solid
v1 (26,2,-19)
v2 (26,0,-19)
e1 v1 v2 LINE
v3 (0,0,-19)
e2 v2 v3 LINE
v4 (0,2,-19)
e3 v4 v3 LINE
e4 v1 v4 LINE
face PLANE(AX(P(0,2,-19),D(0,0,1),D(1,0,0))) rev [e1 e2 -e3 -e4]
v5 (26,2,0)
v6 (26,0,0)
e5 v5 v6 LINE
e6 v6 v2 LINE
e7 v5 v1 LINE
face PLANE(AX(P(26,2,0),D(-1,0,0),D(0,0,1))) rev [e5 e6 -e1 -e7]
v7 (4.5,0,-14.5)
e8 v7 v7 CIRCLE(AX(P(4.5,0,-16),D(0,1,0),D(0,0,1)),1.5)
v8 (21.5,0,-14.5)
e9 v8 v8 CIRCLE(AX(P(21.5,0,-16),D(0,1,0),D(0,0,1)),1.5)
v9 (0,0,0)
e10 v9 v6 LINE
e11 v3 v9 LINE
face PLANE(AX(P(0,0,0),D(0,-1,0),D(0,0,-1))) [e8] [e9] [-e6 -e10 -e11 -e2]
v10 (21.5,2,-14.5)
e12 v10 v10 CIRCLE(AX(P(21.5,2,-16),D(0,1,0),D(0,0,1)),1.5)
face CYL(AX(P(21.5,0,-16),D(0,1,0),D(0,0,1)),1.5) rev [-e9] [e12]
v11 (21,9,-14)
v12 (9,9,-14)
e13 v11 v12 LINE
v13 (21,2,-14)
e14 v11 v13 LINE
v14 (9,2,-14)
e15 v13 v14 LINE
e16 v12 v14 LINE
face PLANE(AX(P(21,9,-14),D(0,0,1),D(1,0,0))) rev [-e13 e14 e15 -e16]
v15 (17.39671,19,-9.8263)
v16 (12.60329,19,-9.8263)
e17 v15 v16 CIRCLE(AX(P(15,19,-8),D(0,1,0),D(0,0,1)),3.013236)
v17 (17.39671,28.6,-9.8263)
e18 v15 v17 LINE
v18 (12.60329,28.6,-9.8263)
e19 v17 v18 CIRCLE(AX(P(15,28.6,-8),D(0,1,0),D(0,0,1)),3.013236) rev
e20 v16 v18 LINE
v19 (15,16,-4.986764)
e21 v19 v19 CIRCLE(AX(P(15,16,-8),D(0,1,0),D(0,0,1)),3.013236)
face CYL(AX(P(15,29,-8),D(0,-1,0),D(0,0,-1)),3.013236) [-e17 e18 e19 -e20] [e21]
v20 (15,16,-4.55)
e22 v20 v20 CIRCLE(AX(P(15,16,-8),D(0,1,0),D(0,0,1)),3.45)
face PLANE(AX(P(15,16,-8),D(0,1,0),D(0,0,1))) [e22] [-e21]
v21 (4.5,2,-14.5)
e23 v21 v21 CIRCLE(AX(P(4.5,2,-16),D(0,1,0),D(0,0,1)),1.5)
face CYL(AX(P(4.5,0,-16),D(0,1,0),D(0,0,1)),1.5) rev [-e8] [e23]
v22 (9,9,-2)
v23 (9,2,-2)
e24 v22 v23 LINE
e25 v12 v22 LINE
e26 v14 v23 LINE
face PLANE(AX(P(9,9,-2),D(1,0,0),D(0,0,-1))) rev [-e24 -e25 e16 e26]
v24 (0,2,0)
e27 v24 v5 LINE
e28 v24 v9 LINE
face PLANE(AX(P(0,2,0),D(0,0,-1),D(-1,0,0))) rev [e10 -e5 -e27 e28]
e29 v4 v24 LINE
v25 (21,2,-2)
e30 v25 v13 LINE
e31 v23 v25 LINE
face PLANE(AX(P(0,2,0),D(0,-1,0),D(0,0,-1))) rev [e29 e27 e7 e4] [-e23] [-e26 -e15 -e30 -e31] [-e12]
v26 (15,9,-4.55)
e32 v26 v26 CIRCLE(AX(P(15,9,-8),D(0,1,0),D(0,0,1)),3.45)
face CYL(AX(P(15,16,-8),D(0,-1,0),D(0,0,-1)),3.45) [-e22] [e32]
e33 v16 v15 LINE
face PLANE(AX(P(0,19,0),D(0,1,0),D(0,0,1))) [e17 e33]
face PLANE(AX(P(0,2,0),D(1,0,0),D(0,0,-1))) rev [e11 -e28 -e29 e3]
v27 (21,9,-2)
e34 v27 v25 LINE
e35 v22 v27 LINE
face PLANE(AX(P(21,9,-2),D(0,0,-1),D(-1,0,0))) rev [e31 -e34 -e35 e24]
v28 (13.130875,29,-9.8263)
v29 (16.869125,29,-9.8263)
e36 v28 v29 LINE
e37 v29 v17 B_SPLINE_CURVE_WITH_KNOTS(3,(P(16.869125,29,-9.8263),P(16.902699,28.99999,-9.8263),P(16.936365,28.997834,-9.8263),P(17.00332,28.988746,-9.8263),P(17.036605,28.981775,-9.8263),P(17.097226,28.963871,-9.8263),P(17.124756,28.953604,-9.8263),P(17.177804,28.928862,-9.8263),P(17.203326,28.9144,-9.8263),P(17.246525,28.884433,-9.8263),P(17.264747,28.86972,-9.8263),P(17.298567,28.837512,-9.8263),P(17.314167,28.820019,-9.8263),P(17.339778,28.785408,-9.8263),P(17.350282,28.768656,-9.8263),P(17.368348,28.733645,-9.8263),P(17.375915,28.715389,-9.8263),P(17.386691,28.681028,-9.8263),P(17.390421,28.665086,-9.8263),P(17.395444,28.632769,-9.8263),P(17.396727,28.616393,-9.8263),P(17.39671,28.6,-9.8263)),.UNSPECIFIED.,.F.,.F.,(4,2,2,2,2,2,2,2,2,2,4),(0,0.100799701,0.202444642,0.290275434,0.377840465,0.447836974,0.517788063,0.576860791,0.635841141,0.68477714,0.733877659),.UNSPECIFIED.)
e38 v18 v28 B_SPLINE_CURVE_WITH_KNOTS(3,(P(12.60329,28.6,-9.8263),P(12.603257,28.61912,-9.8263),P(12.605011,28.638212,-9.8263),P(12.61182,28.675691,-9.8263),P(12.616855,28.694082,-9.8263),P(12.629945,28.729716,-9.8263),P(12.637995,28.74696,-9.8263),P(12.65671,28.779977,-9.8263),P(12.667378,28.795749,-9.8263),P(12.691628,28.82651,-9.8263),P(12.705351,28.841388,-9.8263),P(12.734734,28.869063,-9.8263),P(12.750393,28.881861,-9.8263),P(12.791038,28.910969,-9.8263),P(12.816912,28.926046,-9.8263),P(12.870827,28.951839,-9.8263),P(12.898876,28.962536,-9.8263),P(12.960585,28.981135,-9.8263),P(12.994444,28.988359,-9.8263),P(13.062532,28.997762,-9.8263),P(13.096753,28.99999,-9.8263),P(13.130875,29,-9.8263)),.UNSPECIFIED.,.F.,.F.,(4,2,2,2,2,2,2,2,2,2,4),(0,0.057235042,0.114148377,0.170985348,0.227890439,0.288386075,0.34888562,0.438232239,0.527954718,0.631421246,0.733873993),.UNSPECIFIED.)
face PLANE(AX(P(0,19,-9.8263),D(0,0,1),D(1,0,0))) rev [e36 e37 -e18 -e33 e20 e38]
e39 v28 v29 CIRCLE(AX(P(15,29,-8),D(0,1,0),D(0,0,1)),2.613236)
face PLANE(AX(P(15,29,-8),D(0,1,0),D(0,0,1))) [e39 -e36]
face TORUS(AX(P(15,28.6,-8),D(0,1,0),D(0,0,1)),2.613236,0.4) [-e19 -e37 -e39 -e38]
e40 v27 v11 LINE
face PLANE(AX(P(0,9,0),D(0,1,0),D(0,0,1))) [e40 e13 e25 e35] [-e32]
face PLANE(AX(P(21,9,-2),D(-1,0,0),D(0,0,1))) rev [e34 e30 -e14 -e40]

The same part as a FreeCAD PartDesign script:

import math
import FreeCAD as App
import Part
import Sketcher
from FreeCAD import Vector
Q = App.Units.Quantity


def edges_at(feature, points):
    """Names of the edges that pass closest to the given points."""
    edges = feature.Shape.Edges
    near = lambda p: min(range(len(edges)), key=lambda i: edges[i].distToShape(Part.Vertex(*p))[0])
    return sorted({f"Edge{near(p) + 1}" for p in points})


def add_polygon(sketch, points):
    """Adds a closed chain of lines whose ends are joined by coincident constraints."""
    first, n = sketch.GeometryCount, len(points)
    for a, b in zip(points, points[1:] + points[:1]):
        sketch.addGeometry(Part.LineSegment(App.Vector(*a, 0), App.Vector(*b, 0)), False)
    for i in range(n):
        sketch.addConstraint(Sketcher.Constraint("Coincident", first + i, 2, first + (i + 1) % n, 1))

doc = App.newDocument("Part")
params = doc.addObject("Spreadsheet::Sheet", "Params")
for row, (alias, value) in enumerate([
    ("sketch1_width", "26 mm"),
    ("sketch1_height", "19 mm"),
    ("pad1_length", "2 mm"),
    ("sketch2_width", "12 mm"),
    ("pad2_length", "7 mm"),
    ("sketch3_diameter", "6.9 mm"),
    ("pad3_length", "7 mm"),
    ("pad4_length", "13 mm"),
    ("pocket1_length", "10 mm"),
    ("fillet_radius", "0.4 mm"),
    ("sketch6_diameter", "3 mm"),
], start=1):
    params.set(f"A{row}", alias)
    params.set(f"B{row}", "=" + value)
    params.setAlias(f"B{row}", alias)

body = doc.addObject("PartDesign::Body", "Body")

# Sketch on XZ plane
sketch1 = body.newObject("Sketcher::SketchObject", "Sketch")
sketch1.AttachmentSupport = (doc.getObject("XZ_Plane"), [""])
sketch1.MapMode = "FlatFace"
add_polygon(sketch1, [(0, -19), (0, 0), (26, 0), (26, -19)])  # lines 0-3
sketch1.addConstraint(Sketcher.Constraint("Vertical", 0))
sketch1.addConstraint(Sketcher.Constraint("Horizontal", 1))
sketch1.addConstraint(Sketcher.Constraint("Vertical", 2))
sketch1.addConstraint(Sketcher.Constraint("Horizontal", 3))
sketch1.addConstraint(Sketcher.Constraint("Coincident", 0, 2, -1, 1))
sketch1.addConstraint(Sketcher.Constraint("DistanceX", 1, 1, 1, 2, Q("26 mm")))
sketch1.addConstraint(Sketcher.Constraint("DistanceY", 0, 1, 0, 2, Q("19 mm")))
sketch1.setExpression("Constraints[9]", "Params.sketch1_width")
sketch1.setExpression("Constraints[10]", "Params.sketch1_height")
pad1 = body.newObject("PartDesign::Pad", "Pad")
pad1.Profile = sketch1
pad1.setExpression("Length", "Params.pad1_length")
pad1.Reversed = True

# Sketch on XZ plane
sketch2 = body.newObject("Sketcher::SketchObject", "Sketch001")
sketch2.AttachmentSupport = (doc.getObject("XZ_Plane"), [""])
sketch2.MapMode = "FlatFace"
sketch2.AttachmentOffset = App.Placement(Vector(0, 0, -2), App.Rotation())
add_polygon(sketch2, [(9, -14), (9, -2), (21, -2), (21, -14)])  # lines 0-3
sketch2.addConstraint(Sketcher.Constraint("Vertical", 0))
sketch2.addConstraint(Sketcher.Constraint("Horizontal", 1))
sketch2.addConstraint(Sketcher.Constraint("Vertical", 2))
sketch2.addConstraint(Sketcher.Constraint("Horizontal", 3))
sketch2.addConstraint(Sketcher.Constraint("Equal", 3, 0))
sketch2.addConstraint(Sketcher.Constraint("DistanceX", 1, 1, 1, 2, Q("12 mm")))
sketch2.addConstraint(Sketcher.Constraint("DistanceX", -1, 1, 0, 2, Q("9 mm")))
sketch2.addConstraint(Sketcher.Constraint("DistanceY", 0, 2, -1, 1, Q("2 mm")))
sketch2.setExpression("Constraints[9]", "Params.sketch2_width")
pad2 = body.newObject("PartDesign::Pad", "Pad001")
pad2.Profile = sketch2
pad2.setExpression("Length", "Params.pad2_length")
pad2.Reversed = True

# Sketch on XZ plane
sketch3 = body.newObject("Sketcher::SketchObject", "Sketch002")
sketch3.AttachmentSupport = (doc.getObject("XZ_Plane"), [""])
sketch3.MapMode = "FlatFace"
sketch3.AttachmentOffset = App.Placement(Vector(0, 0, -9), App.Rotation())
sketch3.addGeometry(Part.Circle(Vector(15, -8, 0), Vector(0, 0, 1), 3.5), False)
sketch3.addConstraint(Sketcher.Constraint("Diameter", 0, Q("6.9 mm")))
sketch3.addConstraint(Sketcher.Constraint("DistanceX", -1, 1, 0, 3, Q("15 mm")))
sketch3.addConstraint(Sketcher.Constraint("DistanceY", 0, 3, -1, 1, Q("8 mm")))
sketch3.setExpression("Constraints[0]", "Params.sketch3_diameter")
pad3 = body.newObject("PartDesign::Pad", "Pad002")
pad3.Profile = sketch3
pad3.setExpression("Length", "Params.pad3_length")
pad3.Reversed = True

# Sketch on XZ plane
sketch4 = body.newObject("Sketcher::SketchObject", "Sketch003")
sketch4.AttachmentSupport = (doc.getObject("XZ_Plane"), [""])
sketch4.MapMode = "FlatFace"
sketch4.AttachmentOffset = App.Placement(Vector(0, 0, -16), App.Rotation())
sketch4.addGeometry(Part.Circle(Vector(15, -8, 0), Vector(0, 0, 1), 3), False)
sketch4.addConstraint(Sketcher.Constraint("DistanceX", -1, 1, 0, 3, Q("15 mm")))
sketch4.addConstraint(Sketcher.Constraint("DistanceY", 0, 3, -1, 1, Q("8 mm")))
sketch4.addConstraint(Sketcher.Constraint("Diameter", 0, Q("6.026471 mm")))
pad4 = body.newObject("PartDesign::Pad", "Pad003")
pad4.Profile = sketch4
pad4.setExpression("Length", "Params.pad4_length")
pad4.Reversed = True

# Sketch on XZ plane
sketch5 = body.newObject("Sketcher::SketchObject", "Sketch004")
sketch5.AttachmentSupport = (doc.getObject("XZ_Plane"), [""])
sketch5.MapMode = "FlatFace"
sketch5.AttachmentOffset = App.Placement(Vector(0, 0, -19), App.Rotation())
sketch5.addGeometry(Part.LineSegment(Vector(12.6, -9.8, 0), Vector(17.4, -9.8, 0)), False)
sketch5.addGeometry(Part.ArcOfCircle(Part.Circle(Vector(15, -8, 0), Vector(0, 0, 1), 3), math.radians(-143), math.radians(-37)), False)
sketch5.addConstraint(Sketcher.Constraint("Coincident", 0, 1, 1, 1))
sketch5.addConstraint(Sketcher.Constraint("Coincident", 1, 2, 0, 2))
sketch5.addConstraint(Sketcher.Constraint("Horizontal", 0))
sketch5.addConstraint(Sketcher.Constraint("DistanceX", -1, 1, 1, 3, Q("15 mm")))
sketch5.addConstraint(Sketcher.Constraint("DistanceY", 1, 3, -1, 1, Q("8 mm")))
sketch5.addConstraint(Sketcher.Constraint("Radius", 1, Q("3.013236 mm")))
sketch5.addConstraint(Sketcher.Constraint("DistanceX", 0, 1, 0, 2, Q("4.79342 mm")))
pocket1 = body.newObject("PartDesign::Pocket", "Pocket")
pocket1.Profile = sketch5
pocket1.setExpression("Length", "Params.pocket1_length")
doc.recompute()

fillet = body.newObject("PartDesign::Fillet", "Fillet")
fillet.Base = (pocket1, edges_at(pocket1, [(15, 29, -4.987)]))
fillet.setExpression("Radius", "Params.fillet_radius")

# Sketch on XZ plane
sketch6 = body.newObject("Sketcher::SketchObject", "Sketch005")
sketch6.AttachmentSupport = (doc.getObject("XZ_Plane"), [""])
sketch6.MapMode = "FlatFace"
sketch6.AttachmentOffset = App.Placement(Vector(0, 0, -2), App.Rotation())
sketch6.addGeometry(Part.Circle(Vector(21.5, -16, 0), Vector(0, 0, 1), 1.5), False)
sketch6.addGeometry(Part.Circle(Vector(4.5, -16, 0), Vector(0, 0, 1), 1.5), False)
sketch6.addConstraint(Sketcher.Constraint("Equal", 0, 1))
sketch6.addConstraint(Sketcher.Constraint("Horizontal", 0, 3, 1, 3))
sketch6.addConstraint(Sketcher.Constraint("Diameter", 0, Q("3 mm")))
sketch6.addConstraint(Sketcher.Constraint("DistanceY", 0, 3, -1, 1, Q("16 mm")))
sketch6.addConstraint(Sketcher.Constraint("DistanceX", 1, 3, 0, 3, Q("17 mm")))
sketch6.addConstraint(Sketcher.Constraint("DistanceX", -1, 1, 0, 3, Q("21.5 mm")))
sketch6.setExpression("Constraints[2]", "Params.sketch6_diameter")
pocket2 = body.newObject("PartDesign::Pocket", "Pocket001")
pocket2.Profile = sketch6
pocket2.Type = "ThroughAll"
pocket2.Reversed = True

doc.recompute()
